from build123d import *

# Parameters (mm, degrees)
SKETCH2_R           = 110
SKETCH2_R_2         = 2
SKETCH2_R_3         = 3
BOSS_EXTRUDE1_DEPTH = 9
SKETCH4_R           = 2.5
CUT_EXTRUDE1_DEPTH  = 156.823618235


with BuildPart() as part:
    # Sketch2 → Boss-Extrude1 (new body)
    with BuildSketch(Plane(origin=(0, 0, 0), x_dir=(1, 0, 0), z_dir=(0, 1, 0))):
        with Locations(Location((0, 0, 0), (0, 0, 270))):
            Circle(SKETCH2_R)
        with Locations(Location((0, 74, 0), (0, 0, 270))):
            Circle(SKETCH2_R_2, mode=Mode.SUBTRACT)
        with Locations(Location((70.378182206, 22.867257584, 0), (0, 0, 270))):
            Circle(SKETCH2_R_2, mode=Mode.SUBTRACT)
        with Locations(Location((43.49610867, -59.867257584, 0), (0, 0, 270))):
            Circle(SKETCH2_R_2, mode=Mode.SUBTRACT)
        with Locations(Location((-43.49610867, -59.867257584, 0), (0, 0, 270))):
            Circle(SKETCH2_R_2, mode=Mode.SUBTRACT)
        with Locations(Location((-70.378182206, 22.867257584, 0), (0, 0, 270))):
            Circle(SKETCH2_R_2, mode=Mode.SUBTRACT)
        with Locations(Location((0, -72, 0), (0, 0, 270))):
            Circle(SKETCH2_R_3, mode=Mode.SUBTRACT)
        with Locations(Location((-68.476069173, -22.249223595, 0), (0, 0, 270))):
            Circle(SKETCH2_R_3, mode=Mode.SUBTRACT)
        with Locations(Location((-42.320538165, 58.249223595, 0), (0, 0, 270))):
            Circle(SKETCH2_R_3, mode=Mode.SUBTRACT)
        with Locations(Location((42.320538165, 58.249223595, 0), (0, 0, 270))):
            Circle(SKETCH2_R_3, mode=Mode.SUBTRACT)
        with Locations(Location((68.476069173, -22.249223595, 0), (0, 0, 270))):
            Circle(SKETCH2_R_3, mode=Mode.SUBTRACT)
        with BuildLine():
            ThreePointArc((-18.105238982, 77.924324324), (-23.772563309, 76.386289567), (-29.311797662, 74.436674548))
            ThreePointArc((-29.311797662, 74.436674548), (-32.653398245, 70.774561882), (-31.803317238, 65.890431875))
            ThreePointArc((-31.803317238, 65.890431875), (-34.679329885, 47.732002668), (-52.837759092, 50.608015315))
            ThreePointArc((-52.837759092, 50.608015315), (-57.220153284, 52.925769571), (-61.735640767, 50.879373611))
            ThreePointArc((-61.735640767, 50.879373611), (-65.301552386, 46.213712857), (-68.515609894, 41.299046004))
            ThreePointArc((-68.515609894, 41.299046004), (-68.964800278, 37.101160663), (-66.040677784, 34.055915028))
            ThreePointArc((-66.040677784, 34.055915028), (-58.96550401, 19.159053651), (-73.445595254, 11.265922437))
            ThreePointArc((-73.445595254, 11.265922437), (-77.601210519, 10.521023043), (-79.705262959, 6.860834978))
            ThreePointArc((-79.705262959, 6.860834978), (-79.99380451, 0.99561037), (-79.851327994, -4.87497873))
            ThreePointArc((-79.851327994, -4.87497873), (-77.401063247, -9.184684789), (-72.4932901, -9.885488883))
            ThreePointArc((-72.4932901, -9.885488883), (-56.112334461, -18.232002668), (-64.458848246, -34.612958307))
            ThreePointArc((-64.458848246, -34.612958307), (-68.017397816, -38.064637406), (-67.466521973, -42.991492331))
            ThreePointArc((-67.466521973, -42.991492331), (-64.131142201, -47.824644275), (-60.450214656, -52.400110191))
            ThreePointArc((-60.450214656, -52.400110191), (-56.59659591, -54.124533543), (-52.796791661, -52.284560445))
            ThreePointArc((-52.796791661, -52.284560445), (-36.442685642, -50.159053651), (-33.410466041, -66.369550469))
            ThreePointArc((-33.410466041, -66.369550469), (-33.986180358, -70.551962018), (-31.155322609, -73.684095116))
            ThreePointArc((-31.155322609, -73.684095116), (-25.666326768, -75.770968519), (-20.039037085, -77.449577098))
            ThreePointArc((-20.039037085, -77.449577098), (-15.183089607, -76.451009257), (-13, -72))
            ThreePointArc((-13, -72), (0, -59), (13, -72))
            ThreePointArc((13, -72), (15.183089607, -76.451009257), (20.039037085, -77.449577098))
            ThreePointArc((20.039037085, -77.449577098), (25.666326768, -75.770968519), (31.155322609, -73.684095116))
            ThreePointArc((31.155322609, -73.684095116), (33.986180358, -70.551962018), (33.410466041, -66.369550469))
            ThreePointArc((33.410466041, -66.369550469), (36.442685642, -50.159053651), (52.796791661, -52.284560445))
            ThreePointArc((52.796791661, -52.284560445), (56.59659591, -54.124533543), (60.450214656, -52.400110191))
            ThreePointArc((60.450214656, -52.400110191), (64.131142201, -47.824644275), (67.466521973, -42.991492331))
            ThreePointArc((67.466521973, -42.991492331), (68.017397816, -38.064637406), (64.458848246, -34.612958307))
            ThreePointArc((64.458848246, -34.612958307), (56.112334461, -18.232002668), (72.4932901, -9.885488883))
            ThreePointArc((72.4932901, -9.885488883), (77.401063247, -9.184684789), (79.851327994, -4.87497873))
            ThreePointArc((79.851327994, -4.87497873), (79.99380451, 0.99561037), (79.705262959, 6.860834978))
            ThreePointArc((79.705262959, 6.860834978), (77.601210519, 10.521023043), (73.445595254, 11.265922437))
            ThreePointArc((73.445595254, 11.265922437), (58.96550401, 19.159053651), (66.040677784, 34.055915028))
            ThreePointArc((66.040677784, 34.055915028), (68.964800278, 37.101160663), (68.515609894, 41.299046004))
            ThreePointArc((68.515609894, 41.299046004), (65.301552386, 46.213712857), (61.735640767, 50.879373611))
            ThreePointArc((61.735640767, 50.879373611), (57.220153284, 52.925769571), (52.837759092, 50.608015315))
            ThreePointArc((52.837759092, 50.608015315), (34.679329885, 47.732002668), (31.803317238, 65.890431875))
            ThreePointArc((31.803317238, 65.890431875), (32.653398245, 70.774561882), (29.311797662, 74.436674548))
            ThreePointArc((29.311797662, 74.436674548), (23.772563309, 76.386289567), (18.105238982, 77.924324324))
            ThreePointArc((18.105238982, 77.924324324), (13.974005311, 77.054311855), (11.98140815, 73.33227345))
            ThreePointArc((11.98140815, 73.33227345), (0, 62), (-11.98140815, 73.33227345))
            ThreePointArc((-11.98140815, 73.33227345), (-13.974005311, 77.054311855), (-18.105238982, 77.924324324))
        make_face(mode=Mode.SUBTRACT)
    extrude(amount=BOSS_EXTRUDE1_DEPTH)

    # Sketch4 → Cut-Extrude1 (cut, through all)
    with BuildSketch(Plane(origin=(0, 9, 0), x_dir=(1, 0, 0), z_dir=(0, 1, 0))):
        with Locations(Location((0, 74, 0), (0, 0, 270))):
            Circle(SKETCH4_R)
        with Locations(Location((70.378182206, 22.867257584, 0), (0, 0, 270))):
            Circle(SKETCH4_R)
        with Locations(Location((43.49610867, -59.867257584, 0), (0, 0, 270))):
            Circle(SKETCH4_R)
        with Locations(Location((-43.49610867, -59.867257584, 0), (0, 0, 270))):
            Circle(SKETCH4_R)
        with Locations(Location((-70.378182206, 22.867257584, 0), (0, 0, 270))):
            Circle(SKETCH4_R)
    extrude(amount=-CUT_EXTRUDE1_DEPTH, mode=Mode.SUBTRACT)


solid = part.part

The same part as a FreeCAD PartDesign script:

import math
import FreeCAD as App
import Part
import Sketcher

V = App.Vector
Q = App.Units.Quantity

doc = App.newDocument("Part")
body = doc.addObject("PartDesign::Body", "Body")

# Sketch on XZ plane
sketch1 = doc.addObject("Sketcher::SketchObject", "Sketch")
body.addObject(sketch1)
sketch1.AttachmentSupport = (doc.XZ_Plane, [""])
sketch1.MapMode = "FlatFace"
sketch1.addGeometry(Part.Circle(V(0, 0, 0), V(0, 0, 1), 110), False)
sketch1.addGeometry(Part.Circle(V(-42.3, -58.2, 0), V(0, 0, 1), 3), False)
sketch1.addGeometry(Part.Circle(V(-70.4, -22.9, 0), V(0, 0, 1), 2), False)
sketch1.addGeometry(Part.Circle(V(0, -74, 0), V(0, 0, 1), 2), False)
sketch1.addGeometry(Part.Circle(V(-68.5, 22.2, 0), V(0, 0, 1), 3), False)
sketch1.addGeometry(Part.Circle(V(-43.5, 59.9, 0), V(0, 0, 1), 2), False)
sketch1.addGeometry(Part.Circle(V(42.3, -58.2, 0), V(0, 0, 1), 3), False)
sketch1.addGeometry(Part.Circle(V(70.4, -22.9, 0), V(0, 0, 1), 2), False)
sketch1.addGeometry(Part.ArcOfCircle(Part.Circle(V(0, 0, 0), V(0, 0, 1), 80), math.radians(-111.49), math.radians(-103.08)), False)
sketch1.addGeometry(Part.ArcOfCircle(Part.Circle(V(-17, -73.1, 0), V(0, 0, 1), 5), math.radians(-103), math.radians(-3)), False)
sketch1.addGeometry(Part.ArcOfCircle(Part.Circle(V(0, -74, 0), V(0, 0, 1), 12), math.radians(3), math.radians(177)), False)
sketch1.addGeometry(Part.ArcOfCircle(Part.Circle(V(17, -73.1, 0), V(0, 0, 1), 5), math.radians(-177), math.radians(-77)), False)
sketch1.addGeometry(Part.ArcOfCircle(Part.Circle(V(0, 0, 0), V(0, 0, 1), 80), math.radians(-76.92), math.radians(-68.51)), False)
sketch1.addGeometry(Part.ArcOfCircle(Part.Circle(V(27.2, -69.2, 0), V(0, 0, 1), 5.6), math.radians(-69), math.radians(36)), False)
sketch1.addGeometry(Part.ArcOfCircle(Part.Circle(V(42.3, -58.2, 0), V(0, 0, 1), 13), math.radians(36), math.radians(216)), False)
sketch1.addGeometry(Part.ArcOfCircle(Part.Circle(V(57.4, -47.3, 0), V(0, 0, 1), 5.6), math.radians(-144), math.radians(-39)), False)
sketch1.addGeometry(Part.ArcOfCircle(Part.Circle(V(0, 0, 0), V(0, 0, 1), 80), math.radians(-39.49), math.radians(-31.08)), False)
sketch1.addGeometry(Part.ArcOfCircle(Part.Circle(V(64.2, -38.7, 0), V(0, 0, 1), 5), math.radians(-31), math.radians(69)), False)
sketch1.addGeometry(Part.ArcOfCircle(Part.Circle(V(70.4, -22.9, 0), V(0, 0, 1), 12), math.radians(75), math.radians(249)), False)
sketch1.addGeometry(Part.ArcOfCircle(Part.Circle(V(74.7, -6.4, 0), V(0, 0, 1), 5), math.radians(-105), math.radians(-5)), False)
sketch1.addGeometry(Part.ArcOfCircle(Part.Circle(V(0, 0, 0), V(0, 0, 1), 80), math.radians(-4.92), math.radians(3.49)), False)
sketch1.addGeometry(Part.ArcOfCircle(Part.Circle(V(74.2, 4.5, 0), V(0, 0, 1), 5.6), math.radians(3), math.radians(108)), False)
sketch1.addGeometry(Part.ArcOfCircle(Part.Circle(V(68.5, 22.2, 0), V(0, 0, 1), 13), math.radians(108), math.radians(288)), False)
sketch1.addGeometry(Part.ArcOfCircle(Part.Circle(V(62.7, 40, 0), V(0, 0, 1), 5.6), math.radians(-72), math.radians(33)), False)
sketch1.addGeometry(Part.ArcOfCircle(Part.Circle(V(0, 0, 0), V(0, 0, 1), 80), math.radians(32.51), math.radians(40.92)), False)
sketch1.addGeometry(Part.ArcOfCircle(Part.Circle(V(56.7, 49.1, 0), V(0, 0, 1), 5), math.radians(41), math.radians(141)), False)
sketch1.addGeometry(Part.ArcOfCircle(Part.Circle(V(43.5, 59.9, 0), V(0, 0, 1), 12), math.radians(147), math.radians(321)), False)
sketch1.addGeometry(Part.ArcOfCircle(Part.Circle(V(29.2, 69.1, 0), V(0, 0, 1), 5), math.radians(-33), math.radians(67)), False)
sketch1.addGeometry(Part.ArcOfCircle(Part.Circle(V(0, 0, 0), V(0, 0, 1), 80), math.radians(67.08), math.radians(75.49)), False)
sketch1.addGeometry(Part.ArcOfCircle(Part.Circle(V(18.6, 72, 0), V(0, 0, 1), 5.6), math.radians(75), math.radians(180)), False)
sketch1.addGeometry(Part.ArcOfCircle(Part.Circle(V(0, 72, 0), V(0, 0, 1), 13), math.radians(180), math.radians(360)), False)
sketch1.addGeometry(Part.ArcOfCircle(Part.Circle(V(-18.6, 72, 0), V(0, 0, 1), 5.6), math.radians(0), math.radians(105)), False)
sketch1.addGeometry(Part.ArcOfCircle(Part.Circle(V(0, 0, 0), V(0, 0, 1), 80), math.radians(104.51), math.radians(112.92)), False)
sketch1.addGeometry(Part.ArcOfCircle(Part.Circle(V(-29.2, 69.1, 0), V(0, 0, 1), 5), math.radians(113), math.radians(213)), False)
sketch1.addGeometry(Part.ArcOfCircle(Part.Circle(V(-43.5, 59.9, 0), V(0, 0, 1), 12), math.radians(-141), math.radians(33)), False)
sketch1.addGeometry(Part.ArcOfCircle(Part.Circle(V(-56.7, 49.1, 0), V(0, 0, 1), 5), math.radians(39), math.radians(139)), False)
sketch1.addGeometry(Part.ArcOfCircle(Part.Circle(V(0, 0, 0), V(0, 0, 1), 80), math.radians(139.08), math.radians(147.49)), False)
sketch1.addGeometry(Part.ArcOfCircle(Part.Circle(V(-62.7, 40, 0), V(0, 0, 1), 5.6), math.radians(147), math.radians(252)), False)
sketch1.addGeometry(Part.ArcOfCircle(Part.Circle(V(-68.5, 22.2, 0), V(0, 0, 1), 13), math.radians(-108), math.radians(72)), False)
sketch1.addGeometry(Part.ArcOfCircle(Part.Circle(V(-74.2, 4.5, 0), V(0, 0, 1), 5.6), math.radians(72), math.radians(177)), False)
sketch1.addGeometry(Part.ArcOfCircle(Part.Circle(V(0, 0, 0), V(0, 0, 1), 80), math.radians(176.51), math.radians(184.92)), False)
sketch1.addGeometry(Part.ArcOfCircle(Part.Circle(V(-74.7, -6.4, 0), V(0, 0, 1), 5), math.radians(-175), math.radians(-75)), False)
sketch1.addGeometry(Part.ArcOfCircle(Part.Circle(V(-70.4, -22.9, 0), V(0, 0, 1), 12), math.radians(-69), math.radians(105)), False)
sketch1.addGeometry(Part.ArcOfCircle(Part.Circle(V(-64.2, -38.7, 0), V(0, 0, 1), 5), math.radians(111), math.radians(211)), False)
sketch1.addGeometry(Part.ArcOfCircle(Part.Circle(V(0, 0, 0), V(0, 0, 1), 80), math.radians(-148.92), math.radians(-140.51)), False)
sketch1.addGeometry(Part.ArcOfCircle(Part.Circle(V(-57.4, -47.3, 0), V(0, 0, 1), 5.6), math.radians(-141), math.radians(-36)), False)
sketch1.addGeometry(Part.ArcOfCircle(Part.Circle(V(-42.3, -58.2, 0), V(0, 0, 1), 13), math.radians(-36), math.radians(144)), False)
sketch1.addGeometry(Part.ArcOfCircle(Part.Circle(V(-27.2, -69.2, 0), V(0, 0, 1), 5.6), math.radians(144), math.radians(249)), False)
sketch1.addGeometry(Part.Circle(V(0, 72, 0), V(0, 0, 1), 3), False)
sketch1.addGeometry(Part.Circle(V(68.5, 22.2, 0), V(0, 0, 1), 3), False)
sketch1.addGeometry(Part.Circle(V(43.5, 59.9, 0), V(0, 0, 1), 2), False)
sketch1.addConstraint(Sketcher.Constraint("Tangent", 8, 2, 9, 1))
sketch1.addConstraint(Sketcher.Constraint("Tangent", 9, 2, 10, 2))
sketch1.addConstraint(Sketcher.Constraint("Tangent", 10, 1, 11, 1))
sketch1.addConstraint(Sketcher.Constraint("Tangent", 11, 2, 12, 1))
sketch1.addConstraint(Sketcher.Constraint("Tangent", 12, 2, 13, 1))
sketch1.addConstraint(Sketcher.Constraint("Tangent", 13, 2, 14, 2))
sketch1.addConstraint(Sketcher.Constraint("Tangent", 14, 1, 15, 1))
sketch1.addConstraint(Sketcher.Constraint("Tangent", 15, 2, 16, 1))
sketch1.addConstraint(Sketcher.Constraint("Tangent", 16, 2, 17, 1))
sketch1.addConstraint(Sketcher.Constraint("Tangent", 17, 2, 18, 2))
sketch1.addConstraint(Sketcher.Constraint("Tangent", 18, 1, 19, 1))
sketch1.addConstraint(Sketcher.Constraint("Tangent", 19, 2, 20, 1))
sketch1.addConstraint(Sketcher.Constraint("Tangent", 20, 2, 21, 1))
sketch1.addConstraint(Sketcher.Constraint("Tangent", 21, 2, 22, 2))
sketch1.addConstraint(Sketcher.Constraint("Tangent", 22, 1, 23, 1))
sketch1.addConstraint(Sketcher.Constraint("Tangent", 23, 2, 24, 1))
sketch1.addConstraint(Sketcher.Constraint("Tangent", 24, 2, 25, 1))
sketch1.addConstraint(Sketcher.Constraint("Tangent", 25, 2, 26, 2))
sketch1.addConstraint(Sketcher.Constraint("Tangent", 26, 1, 27, 1))
sketch1.addConstraint(Sketcher.Constraint("Tangent", 27, 2, 28, 1))
sketch1.addConstraint(Sketcher.Constraint("Tangent", 28, 2, 29, 1))
sketch1.addConstraint(Sketcher.Constraint("Tangent", 29, 2, 30, 2))
sketch1.addConstraint(Sketcher.Constraint("Tangent", 30, 1, 31, 1))
sketch1.addConstraint(Sketcher.Constraint("Tangent", 31, 2, 32, 1))
sketch1.addConstraint(Sketcher.Constraint("Tangent", 32, 2, 33, 1))
sketch1.addConstraint(Sketcher.Constraint("Tangent", 33, 2, 34, 2))
sketch1.addConstraint(Sketcher.Constraint("Tangent", 34, 1, 35, 1))
sketch1.addConstraint(Sketcher.Constraint("Tangent", 35, 2, 36, 1))
sketch1.addConstraint(Sketcher.Constraint("Tangent", 36, 2, 37, 1))
sketch1.addConstraint(Sketcher.Constraint("Tangent", 37, 2, 38, 2))
sketch1.addConstraint(Sketcher.Constraint("Tangent", 38, 1, 39, 1))
sketch1.addConstraint(Sketcher.Constraint("Tangent", 39, 2, 40, 1))
sketch1.addConstraint(Sketcher.Constraint("Tangent", 40, 2, 41, 1))
sketch1.addConstraint(Sketcher.Constraint("Tangent", 41, 2, 42, 2))
sketch1.addConstraint(Sketcher.Constraint("Tangent", 42, 1, 43, 1))
sketch1.addConstraint(Sketcher.Constraint("Tangent", 43, 2, 44, 1))
sketch1.addConstraint(Sketcher.Constraint("Tangent", 44, 2, 45, 1))
sketch1.addConstraint(Sketcher.Constraint("Tangent", 45, 2, 46, 2))
sketch1.addConstraint(Sketcher.Constraint("Tangent", 46, 1, 47, 1))
sketch1.addConstraint(Sketcher.Constraint("Tangent", 47, 2, 8, 1))
sketch1.addConstraint(Sketcher.Constraint("Coincident", 0, 3, -1, 1))
sketch1.addConstraint(Sketcher.Constraint("Coincident", 8, 3, -1, 1))
sketch1.addConstraint(Sketcher.Constraint("Coincident", 12, 3, -1, 1))
sketch1.addConstraint(Sketcher.Constraint("Coincident", 16, 3, -1, 1))
sketch1.addConstraint(Sketcher.Constraint("Coincident", 20, 3, -1, 1))
sketch1.addConstraint(Sketcher.Constraint("Coincident", 24, 3, -1, 1))
sketch1.addConstraint(Sketcher.Constraint("Coincident", 28, 3, -1, 1))
sketch1.addConstraint(Sketcher.Constraint("Coincident", 32, 3, -1, 1))
sketch1.addConstraint(Sketcher.Constraint("Coincident", 36, 3, -1, 1))
sketch1.addConstraint(Sketcher.Constraint("Coincident", 40, 3, -1, 1))
sketch1.addConstraint(Sketcher.Constraint("Coincident", 44, 3, -1, 1))
sketch1.addConstraint(Sketcher.Constraint("Coincident", 10, 3, 3, 3))
sketch1.addConstraint(Sketcher.Constraint("Coincident", 14, 3, 6, 3))
sketch1.addConstraint(Sketcher.Constraint("Coincident", 18, 3, 7, 3))
sketch1.addConstraint(Sketcher.Constraint("Coincident", 34, 3, 5, 3))
sketch1.addConstraint(Sketcher.Constraint("Coincident", 38, 3, 4, 3))
sketch1.addConstraint(Sketcher.Constraint("Coincident", 42, 3, 2, 3))
sketch1.addConstraint(Sketcher.Constraint("Coincident", 46, 3, 1, 3))
sketch1.addConstraint(Sketcher.Constraint("Coincident", 48, 3, 30, 3))
sketch1.addConstraint(Sketcher.Constraint("Coincident", 49, 3, 22, 3))
sketch1.addConstraint(Sketcher.Constraint("Coincident", 50, 3, 26, 3))
sketch1.addConstraint(Sketcher.Constraint("Equal", 2, 3))
sketch1.addConstraint(Sketcher.Constraint("Equal", 1, 4))
sketch1.addConstraint(Sketcher.Constraint("Equal", 3, 5))
sketch1.addConstraint(Sketcher.Constraint("Equal", 4, 6))
sketch1.addConstraint(Sketcher.Constraint("Equal", 5, 7))
sketch1.addConstraint(Sketcher.Constraint("Equal", 9, 11))
sketch1.addConstraint(Sketcher.Constraint("Equal", 8, 12))
sketch1.addConstraint(Sketcher.Constraint("Equal", 13, 15))
sketch1.addConstraint(Sketcher.Constraint("Equal", 12, 16))
sketch1.addConstraint(Sketcher.Constraint("Equal", 11, 17))
sketch1.addConstraint(Sketcher.Constraint("Equal", 10, 18))
sketch1.addConstraint(Sketcher.Constraint("Equal", 17, 19))
sketch1.addConstraint(Sketcher.Constraint("Equal", 16, 20))
sketch1.addConstraint(Sketcher.Constraint("Equal", 15, 21))
sketch1.addConstraint(Sketcher.Constraint("Equal", 14, 22))
sketch1.addConstraint(Sketcher.Constraint("Equal", 21, 23))
sketch1.addConstraint(Sketcher.Constraint("Equal", 20, 24))
sketch1.addConstraint(Sketcher.Constraint("Equal", 19, 25))
sketch1.addConstraint(Sketcher.Constraint("Equal", 18, 26))
sketch1.addConstraint(Sketcher.Constraint("Equal", 25, 27))
sketch1.addConstraint(Sketcher.Constraint("Equal", 24, 28))
sketch1.addConstraint(Sketcher.Constraint("Equal", 23, 29))
sketch1.addConstraint(Sketcher.Constraint("Equal", 22, 30))
sketch1.addConstraint(Sketcher.Constraint("Equal", 29, 31))
sketch1.addConstraint(Sketcher.Constraint("Equal", 28, 32))
sketch1.addConstraint(Sketcher.Constraint("Equal", 27, 33))
sketch1.addConstraint(Sketcher.Constraint("Equal", 26, 34))
sketch1.addConstraint(Sketcher.Constraint("Equal", 33, 35))
sketch1.addConstraint(Sketcher.Constraint("Equal", 32, 36))
sketch1.addConstraint(Sketcher.Constraint("Equal", 31, 37))
sketch1.addConstraint(Sketcher.Constraint("Equal", 30, 38))
sketch1.addConstraint(Sketcher.Constraint("Equal", 37, 39))
sketch1.addConstraint(Sketcher.Constraint("Equal", 36, 40))
sketch1.addConstraint(Sketcher.Constraint("Equal", 35, 41))
sketch1.addConstraint(Sketcher.Constraint("Equal", 34, 42))
sketch1.addConstraint(Sketcher.Constraint("Equal", 41, 43))
sketch1.addConstraint(Sketcher.Constraint("Equal", 40, 44))
sketch1.addConstraint(Sketcher.Constraint("Equal", 39, 45))
sketch1.addConstraint(Sketcher.Constraint("Equal", 38, 46))
sketch1.addConstraint(Sketcher.Constraint("Equal", 45, 47))
sketch1.addConstraint(Sketcher.Constraint("Equal", 6, 48))
sketch1.addConstraint(Sketcher.Constraint("Equal", 48, 49))
sketch1.addConstraint(Sketcher.Constraint("Equal", 7, 50))
sketch1.addConstraint(Sketcher.Constraint("Symmetric", 1, 3, 6, 3, -2))
sketch1.addConstraint(Sketcher.Constraint("Symmetric", 2, 3, 7, 3, -2))
sketch1.addConstraint(Sketcher.Constraint("Symmetric", 4, 3, 22, 3, -2))
sketch1.addConstraint(Sketcher.Constraint("Symmetric", 5, 3, 26, 3, -2))
sketch1.addConstraint(Sketcher.Constraint("PointOnObject", 3, 3, -2))
sketch1.addConstraint(Sketcher.Constraint("PointOnObject", 30, 3, -2))
sketch1.addConstraint(Sketcher.Constraint("Horizontal", 29, 3, 30, 3))
sketch1.addConstraint(Sketcher.Constraint("Diameter", 0, Q("220 mm")))
sketch1.addConstraint(Sketcher.Constraint("Diameter", 1, Q("6 mm")))
sketch1.addConstraint(Sketcher.Constraint("Diameter", 2, Q("4 mm")))
sketch1.addConstraint(Sketcher.Constraint("Radius", 8, Q("80 mm")))
sketch1.addConstraint(Sketcher.Constraint("Radius", 9, Q("5 mm")))
sketch1.addConstraint(Sketcher.Constraint("Radius", 10, Q("12 mm")))
sketch1.addConstraint(Sketcher.Constraint("Radius", 14, Q("13 mm")))
sketch1.addConstraint(Sketcher.Constraint("DistanceY", 3, 3, -1, 1, Q("74 mm")))
sketch1.addConstraint(Sketcher.Constraint("DistanceY", -1, 1, 29, 3, Q("72 mm")))
sketch1.addConstraint(Sketcher.Constraint("DistanceX", 1, 3, -1, 1, Q("42.320538 mm")))
sketch1.addConstraint(Sketcher.Constraint("DistanceX", 4, 3, -1, 1, Q("68.476069 mm")))
sketch1.addConstraint(Sketcher.Constraint("DistanceX", 5, 3, -1, 1, Q("43.496109 mm")))
sketch1.addConstraint(Sketcher.Constraint("DistanceX", -1, 1, 15, 3, Q("57.391742 mm")))
sketch1.addConstraint(Sketcher.Constraint("DistanceY", -1, 1, 21, 3, Q("4.531961 mm")))
sketch1.addConstraint(Sketcher.Constraint("DistanceY", -1, 1, 27, 3, Q("69.078839 mm")))
sketch1.addConstraint(Sketcher.Constraint("DistanceX", -1, 1, 16, 2, Q("68.51561 mm")))
sketch1.addConstraint(Sketcher.Constraint("DistanceX", 2, 3, -1, 1, Q("70.378182 mm")))
pad1 = doc.addObject("PartDesign::Pad", "Pad")
body.addObject(pad1)
pad1.Profile = sketch1
pad1.Length = 9
pad1.Reversed = True

# Sketch on XZ plane
sketch2 = doc.addObject("Sketcher::SketchObject", "Sketch001")
body.addObject(sketch2)
sketch2.AttachmentSupport = (doc.XZ_Plane, [""])
sketch2.MapMode = "FlatFace"
sketch2.AttachmentOffset = App.Placement(V(0, 0, -9), App.Rotation())
sketch2.addGeometry(Part.Circle(V(0, -74, 0), V(0, 0, 1), 2.5), False)
sketch2.addGeometry(Part.Circle(V(70.4, -22.9, 0), V(0, 0, 1), 2.5), False)
sketch2.addGeometry(Part.Circle(V(43.5, 59.9, 0), V(0, 0, 1), 2.5), False)
sketch2.addGeometry(Part.Circle(V(-43.5, 59.9, 0), V(0, 0, 1), 2.5), False)
sketch2.addGeometry(Part.Circle(V(-70.4, -22.9, 0), V(0, 0, 1), 2.5), False)
sketch2.addConstraint(Sketcher.Constraint("Equal", 0, 1))
sketch2.addConstraint(Sketcher.Constraint("Equal", 1, 2))
sketch2.addConstraint(Sketcher.Constraint("Equal", 2, 3))
sketch2.addConstraint(Sketcher.Constraint("Equal", 3, 4))
sketch2.addConstraint(Sketcher.Constraint("Symmetric", 2, 3, 3, 3, -2))
sketch2.addConstraint(Sketcher.Constraint("Symmetric", 1, 3, 4, 3, -2))
sketch2.addConstraint(Sketcher.Constraint("PointOnObject", 0, 3, -2))
sketch2.addConstraint(Sketcher.Constraint("Diameter", 0, Q("5 mm")))
sketch2.addConstraint(Sketcher.Constraint("DistanceY", 0, 3, -1, 1, Q("74 mm")))
sketch2.addConstraint(Sketcher.Constraint("DistanceX", -1, 1, 2, 3, Q("43.496109 mm")))
sketch2.addConstraint(Sketcher.Constraint("DistanceX", 3, 3, 1, 3, Q("113.874291 mm")))
sketch2.addConstraint(Sketcher.Constraint("DistanceY", 1, 3, -1, 1, Q("22.867258 mm")))
sketch2.addConstraint(Sketcher.Constraint("DistanceY", -1, 1, 2, 3, Q("59.867258 mm")))
pocket1 = doc.addObject("PartDesign::Pocket", "Pocket")
body.addObject(pocket1)
pocket1.Profile = sketch2
pocket1.Type = "ThroughAll"
pocket1.Reversed = True

doc.recompute()
